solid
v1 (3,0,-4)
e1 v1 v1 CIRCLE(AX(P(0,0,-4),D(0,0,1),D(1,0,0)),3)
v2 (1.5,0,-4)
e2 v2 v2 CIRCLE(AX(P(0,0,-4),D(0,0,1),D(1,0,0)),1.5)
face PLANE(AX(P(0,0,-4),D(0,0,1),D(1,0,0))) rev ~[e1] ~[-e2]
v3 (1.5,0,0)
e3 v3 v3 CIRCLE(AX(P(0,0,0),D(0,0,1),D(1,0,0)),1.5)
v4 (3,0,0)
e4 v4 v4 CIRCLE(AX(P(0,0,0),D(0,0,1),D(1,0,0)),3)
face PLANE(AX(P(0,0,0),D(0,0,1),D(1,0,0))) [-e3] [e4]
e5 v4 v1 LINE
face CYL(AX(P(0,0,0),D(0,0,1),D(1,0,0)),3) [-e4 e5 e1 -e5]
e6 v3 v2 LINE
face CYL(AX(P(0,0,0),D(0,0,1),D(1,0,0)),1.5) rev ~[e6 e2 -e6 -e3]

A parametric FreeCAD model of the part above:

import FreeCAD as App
import Part
import Sketcher
from FreeCAD import Vector
Q = App.Units.Quantity

doc = App.newDocument("Part")
body = doc.addObject("PartDesign::Body", "Body")

# Sketch on XY plane
sketch1 = body.newObject("Sketcher::SketchObject", "Sketch")
sketch1.AttachmentSupport = (doc.getObject("XY_Plane"), [""])
sketch1.MapMode = "FlatFace"
sketch1.addGeometry(Part.Circle(Vector(0, 0, 0), Vector(0, 0, 1), 3), False)
sketch1.addGeometry(Part.Circle(Vector(0, 0, 0), Vector(0, 0, 1), 1.5), False)
sketch1.addConstraint(Sketcher.Constraint("Coincident", 0, 3, -1, 1))
sketch1.addConstraint(Sketcher.Constraint("Coincident", 1, 3, -1, 1))
sketch1.addConstraint(Sketcher.Constraint("Diameter", 0, Q("6 mm")))
sketch1.addConstraint(Sketcher.Constraint("Diameter", 1, Q("3 mm")))
pad1 = body.newObject("PartDesign::Pad", "Pad")
pad1.Profile = sketch1
pad1.Length = 4
pad1.Reversed = True

doc.recompute()
